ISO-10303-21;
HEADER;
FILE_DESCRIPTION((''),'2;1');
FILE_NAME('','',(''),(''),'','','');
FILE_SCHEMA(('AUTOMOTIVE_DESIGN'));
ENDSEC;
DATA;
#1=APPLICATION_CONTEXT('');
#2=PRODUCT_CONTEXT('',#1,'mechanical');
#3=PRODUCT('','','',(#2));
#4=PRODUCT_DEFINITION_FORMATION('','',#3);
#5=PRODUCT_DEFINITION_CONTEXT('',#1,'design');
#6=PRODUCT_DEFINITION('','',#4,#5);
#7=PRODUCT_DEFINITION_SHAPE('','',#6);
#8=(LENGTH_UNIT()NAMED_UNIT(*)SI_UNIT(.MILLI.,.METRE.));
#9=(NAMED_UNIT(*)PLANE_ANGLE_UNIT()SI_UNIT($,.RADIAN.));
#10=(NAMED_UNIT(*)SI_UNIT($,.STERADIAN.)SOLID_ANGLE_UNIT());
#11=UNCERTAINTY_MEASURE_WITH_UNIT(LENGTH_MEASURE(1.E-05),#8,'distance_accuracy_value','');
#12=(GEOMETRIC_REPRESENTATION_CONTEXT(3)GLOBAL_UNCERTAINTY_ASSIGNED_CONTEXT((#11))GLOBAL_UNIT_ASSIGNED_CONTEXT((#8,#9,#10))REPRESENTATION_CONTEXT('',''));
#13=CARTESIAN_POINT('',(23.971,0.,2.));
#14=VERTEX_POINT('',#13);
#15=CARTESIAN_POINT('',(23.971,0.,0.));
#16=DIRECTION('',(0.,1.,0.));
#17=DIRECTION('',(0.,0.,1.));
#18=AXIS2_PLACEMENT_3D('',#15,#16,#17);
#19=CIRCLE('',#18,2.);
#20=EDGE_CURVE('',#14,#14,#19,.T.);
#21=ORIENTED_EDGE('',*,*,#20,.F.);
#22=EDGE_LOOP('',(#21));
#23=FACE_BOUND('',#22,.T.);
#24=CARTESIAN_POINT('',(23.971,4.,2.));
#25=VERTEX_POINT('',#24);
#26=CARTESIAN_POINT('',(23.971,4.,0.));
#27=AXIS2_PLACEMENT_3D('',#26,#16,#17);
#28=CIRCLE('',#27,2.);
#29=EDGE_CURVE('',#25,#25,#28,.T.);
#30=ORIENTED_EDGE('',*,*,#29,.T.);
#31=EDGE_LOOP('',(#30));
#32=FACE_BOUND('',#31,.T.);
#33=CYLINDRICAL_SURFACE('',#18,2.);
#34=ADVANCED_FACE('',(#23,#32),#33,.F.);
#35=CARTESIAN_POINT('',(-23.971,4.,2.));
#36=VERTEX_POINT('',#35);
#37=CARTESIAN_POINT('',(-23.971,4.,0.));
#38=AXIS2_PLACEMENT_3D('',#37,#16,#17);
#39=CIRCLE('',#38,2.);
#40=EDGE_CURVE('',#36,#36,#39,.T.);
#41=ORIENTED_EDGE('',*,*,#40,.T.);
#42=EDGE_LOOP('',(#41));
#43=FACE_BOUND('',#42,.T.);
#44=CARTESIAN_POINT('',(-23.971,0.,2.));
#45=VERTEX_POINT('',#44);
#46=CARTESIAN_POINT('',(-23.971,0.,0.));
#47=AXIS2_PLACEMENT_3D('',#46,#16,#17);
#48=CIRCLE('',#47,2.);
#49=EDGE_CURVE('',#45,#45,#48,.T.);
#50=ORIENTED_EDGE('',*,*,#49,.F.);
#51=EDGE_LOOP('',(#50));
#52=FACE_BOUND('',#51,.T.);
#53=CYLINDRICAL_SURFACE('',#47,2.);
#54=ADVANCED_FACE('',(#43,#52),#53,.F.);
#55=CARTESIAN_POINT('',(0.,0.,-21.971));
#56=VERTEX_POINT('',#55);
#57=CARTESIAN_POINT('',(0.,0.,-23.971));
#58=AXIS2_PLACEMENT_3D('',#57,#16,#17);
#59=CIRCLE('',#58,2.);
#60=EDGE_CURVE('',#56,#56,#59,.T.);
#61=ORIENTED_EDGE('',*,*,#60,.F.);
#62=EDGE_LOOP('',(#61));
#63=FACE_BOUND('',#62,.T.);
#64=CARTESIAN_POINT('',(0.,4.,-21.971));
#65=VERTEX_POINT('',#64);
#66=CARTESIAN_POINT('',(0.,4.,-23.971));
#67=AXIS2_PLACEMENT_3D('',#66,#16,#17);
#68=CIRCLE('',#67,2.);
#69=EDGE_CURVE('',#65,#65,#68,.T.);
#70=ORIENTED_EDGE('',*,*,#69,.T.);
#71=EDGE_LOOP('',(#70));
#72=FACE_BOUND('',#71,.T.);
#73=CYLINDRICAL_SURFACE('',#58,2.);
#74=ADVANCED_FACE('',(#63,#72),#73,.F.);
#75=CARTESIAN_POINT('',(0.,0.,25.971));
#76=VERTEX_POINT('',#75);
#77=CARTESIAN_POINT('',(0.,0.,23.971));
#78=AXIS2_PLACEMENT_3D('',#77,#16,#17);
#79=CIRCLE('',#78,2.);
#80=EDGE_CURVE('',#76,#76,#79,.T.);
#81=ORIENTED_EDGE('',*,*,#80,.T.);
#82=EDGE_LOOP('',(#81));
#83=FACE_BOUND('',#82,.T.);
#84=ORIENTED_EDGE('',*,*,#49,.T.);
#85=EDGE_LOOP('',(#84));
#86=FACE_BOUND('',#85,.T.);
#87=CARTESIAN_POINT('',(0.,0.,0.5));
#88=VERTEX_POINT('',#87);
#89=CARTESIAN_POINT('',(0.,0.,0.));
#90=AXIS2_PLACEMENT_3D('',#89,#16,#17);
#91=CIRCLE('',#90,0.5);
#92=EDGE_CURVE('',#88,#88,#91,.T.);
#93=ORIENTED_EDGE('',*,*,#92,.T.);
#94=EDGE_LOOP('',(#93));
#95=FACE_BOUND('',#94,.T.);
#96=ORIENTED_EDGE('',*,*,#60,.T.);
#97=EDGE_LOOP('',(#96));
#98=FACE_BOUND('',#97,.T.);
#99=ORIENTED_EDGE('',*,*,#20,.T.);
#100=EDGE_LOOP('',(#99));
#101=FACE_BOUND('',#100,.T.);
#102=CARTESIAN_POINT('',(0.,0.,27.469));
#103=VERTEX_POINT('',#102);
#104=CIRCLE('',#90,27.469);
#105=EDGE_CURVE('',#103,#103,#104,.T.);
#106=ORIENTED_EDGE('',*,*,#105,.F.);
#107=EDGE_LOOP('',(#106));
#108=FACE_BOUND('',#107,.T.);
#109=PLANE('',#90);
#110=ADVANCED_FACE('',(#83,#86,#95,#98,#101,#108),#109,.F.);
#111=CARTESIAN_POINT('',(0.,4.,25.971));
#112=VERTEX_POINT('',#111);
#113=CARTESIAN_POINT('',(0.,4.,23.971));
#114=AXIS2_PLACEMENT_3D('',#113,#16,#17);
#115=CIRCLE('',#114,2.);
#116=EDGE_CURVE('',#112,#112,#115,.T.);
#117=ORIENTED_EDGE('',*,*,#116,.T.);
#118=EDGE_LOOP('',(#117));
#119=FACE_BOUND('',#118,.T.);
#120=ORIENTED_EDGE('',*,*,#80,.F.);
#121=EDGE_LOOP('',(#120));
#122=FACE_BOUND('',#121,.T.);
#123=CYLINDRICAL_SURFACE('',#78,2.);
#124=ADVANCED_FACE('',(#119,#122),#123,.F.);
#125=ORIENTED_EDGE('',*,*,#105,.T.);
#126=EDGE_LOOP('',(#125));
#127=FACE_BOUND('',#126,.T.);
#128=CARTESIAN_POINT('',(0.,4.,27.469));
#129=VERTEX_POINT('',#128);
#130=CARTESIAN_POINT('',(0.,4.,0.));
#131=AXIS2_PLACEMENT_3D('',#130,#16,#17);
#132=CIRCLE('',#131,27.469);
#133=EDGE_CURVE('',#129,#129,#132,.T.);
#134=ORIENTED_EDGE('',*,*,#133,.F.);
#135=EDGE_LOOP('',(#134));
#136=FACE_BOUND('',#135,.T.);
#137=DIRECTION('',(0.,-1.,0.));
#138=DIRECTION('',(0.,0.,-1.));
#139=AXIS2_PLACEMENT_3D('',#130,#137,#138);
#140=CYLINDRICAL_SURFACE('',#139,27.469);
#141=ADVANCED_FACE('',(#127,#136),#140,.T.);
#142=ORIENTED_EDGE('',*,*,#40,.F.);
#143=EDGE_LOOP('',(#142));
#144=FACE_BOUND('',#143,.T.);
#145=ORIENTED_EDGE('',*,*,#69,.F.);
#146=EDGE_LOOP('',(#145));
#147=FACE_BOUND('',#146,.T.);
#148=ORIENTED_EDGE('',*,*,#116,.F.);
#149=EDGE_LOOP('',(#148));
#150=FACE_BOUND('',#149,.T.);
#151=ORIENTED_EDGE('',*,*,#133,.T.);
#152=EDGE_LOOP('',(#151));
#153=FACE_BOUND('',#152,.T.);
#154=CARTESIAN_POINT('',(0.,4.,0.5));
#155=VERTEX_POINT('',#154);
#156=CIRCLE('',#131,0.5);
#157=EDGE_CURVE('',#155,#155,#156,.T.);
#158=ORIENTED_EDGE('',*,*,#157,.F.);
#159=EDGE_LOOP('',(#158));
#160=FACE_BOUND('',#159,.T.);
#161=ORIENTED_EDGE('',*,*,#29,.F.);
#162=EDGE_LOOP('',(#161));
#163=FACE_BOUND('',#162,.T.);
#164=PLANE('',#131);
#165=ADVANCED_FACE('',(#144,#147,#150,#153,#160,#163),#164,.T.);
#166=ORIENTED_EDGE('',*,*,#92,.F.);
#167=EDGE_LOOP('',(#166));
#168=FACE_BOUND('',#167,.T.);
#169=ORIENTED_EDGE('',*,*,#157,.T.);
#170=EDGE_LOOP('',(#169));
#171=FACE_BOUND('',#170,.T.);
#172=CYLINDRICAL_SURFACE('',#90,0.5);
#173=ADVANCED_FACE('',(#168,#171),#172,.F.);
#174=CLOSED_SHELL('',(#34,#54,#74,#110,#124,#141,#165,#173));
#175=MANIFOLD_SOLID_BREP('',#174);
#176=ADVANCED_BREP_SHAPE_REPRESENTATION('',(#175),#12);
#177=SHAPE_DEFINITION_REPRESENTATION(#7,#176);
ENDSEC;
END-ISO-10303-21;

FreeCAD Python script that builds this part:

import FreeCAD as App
import Part
import Sketcher
Q = App.Units.Quantity

doc = App.newDocument("Part")
body = doc.addObject("PartDesign::Body", "Body")

# Sketch on XZ plane
sketch1 = body.newObject("Sketcher::SketchObject", "Sketch")
sketch1.AttachmentSupport = (doc.getObject("XZ_Plane"), [""])
sketch1.MapMode = "FlatFace"
sketch1.addGeometry(Part.Circle(App.Vector(0, 0, 0), App.Vector(0, 0, 1), 27), False)
sketch1.addConstraint([
    Sketcher.Constraint("Coincident", 0, 3, -1, 1),
    Sketcher.Constraint("Diameter", 0, Q("54.938 mm")),
])
pad1 = body.newObject("PartDesign::Pad", "Pad")
pad1.Profile = sketch1
pad1.Length = 4
pad1.Reversed = True

# Sketch on XZ plane
sketch2 = body.newObject("Sketcher::SketchObject", "Sketch001")
sketch2.AttachmentSupport = (doc.getObject("XZ_Plane"), [""])
sketch2.MapMode = "FlatFace"
sketch2.AttachmentOffset = App.Placement(App.Vector(0, 0, -4), App.Rotation())
sketch2.addGeometry([
    Part.Circle(App.Vector(-24, 0, 0), App.Vector(0, 0, 1), 2),
    Part.Circle(App.Vector(0, -24, 0), App.Vector(0, 0, 1), 2),
    Part.Circle(App.Vector(24, 0, 0), App.Vector(0, 0, 1), 2),
    Part.Circle(App.Vector(0, 24, 0), App.Vector(0, 0, 1), 2),
], False)
sketch2.addConstraint([
    Sketcher.Constraint("Equal", 0, 1),
    Sketcher.Constraint("Equal", 1, 2),
    Sketcher.Constraint("Equal", 2, 3),
    Sketcher.Constraint("Symmetric", 0, 3, 2, 3, -1, 1),
    Sketcher.Constraint("Symmetric", 1, 3, 3, 3, -1, 1),
    Sketcher.Constraint("PointOnObject", 0, 3, -1),
    Sketcher.Constraint("PointOnObject", 1, 3, -2),
    Sketcher.Constraint("Diameter", 0, Q("4 mm")),
    Sketcher.Constraint("DistanceX", 0, 3, -1, 1, Q("23.971 mm")),
    Sketcher.Constraint("DistanceY", 1, 3, -1, 1, Q("23.971 mm")),
])
pocket1 = body.newObject("PartDesign::Pocket", "Pocket")
pocket1.Profile = sketch2
pocket1.Type = "ThroughAll"
pocket1.Reversed = True

# Sketch on XZ plane
sketch3 = body.newObject("Sketcher::SketchObject", "Sketch002")
sketch3.AttachmentSupport = (doc.getObject("XZ_Plane"), [""])
sketch3.MapMode = "FlatFace"
sketch3.AttachmentOffset = App.Placement(App.Vector(0, 0, -5), App.Rotation())
sketch3.addGeometry(Part.Circle(App.Vector(0, 0, 0), App.Vector(0, 0, 1), 0.5), False)
sketch3.addConstraint([
    Sketcher.Constraint("Coincident", 0, 3, -1, 1),
    Sketcher.Constraint("Diameter", 0, Q("1 mm")),
])
pocket2 = body.newObject("PartDesign::Pocket", "Pocket001")
pocket2.Profile = sketch3
pocket2.Type = "ThroughAll"
pocket2.Reversed = True

doc.recompute()
